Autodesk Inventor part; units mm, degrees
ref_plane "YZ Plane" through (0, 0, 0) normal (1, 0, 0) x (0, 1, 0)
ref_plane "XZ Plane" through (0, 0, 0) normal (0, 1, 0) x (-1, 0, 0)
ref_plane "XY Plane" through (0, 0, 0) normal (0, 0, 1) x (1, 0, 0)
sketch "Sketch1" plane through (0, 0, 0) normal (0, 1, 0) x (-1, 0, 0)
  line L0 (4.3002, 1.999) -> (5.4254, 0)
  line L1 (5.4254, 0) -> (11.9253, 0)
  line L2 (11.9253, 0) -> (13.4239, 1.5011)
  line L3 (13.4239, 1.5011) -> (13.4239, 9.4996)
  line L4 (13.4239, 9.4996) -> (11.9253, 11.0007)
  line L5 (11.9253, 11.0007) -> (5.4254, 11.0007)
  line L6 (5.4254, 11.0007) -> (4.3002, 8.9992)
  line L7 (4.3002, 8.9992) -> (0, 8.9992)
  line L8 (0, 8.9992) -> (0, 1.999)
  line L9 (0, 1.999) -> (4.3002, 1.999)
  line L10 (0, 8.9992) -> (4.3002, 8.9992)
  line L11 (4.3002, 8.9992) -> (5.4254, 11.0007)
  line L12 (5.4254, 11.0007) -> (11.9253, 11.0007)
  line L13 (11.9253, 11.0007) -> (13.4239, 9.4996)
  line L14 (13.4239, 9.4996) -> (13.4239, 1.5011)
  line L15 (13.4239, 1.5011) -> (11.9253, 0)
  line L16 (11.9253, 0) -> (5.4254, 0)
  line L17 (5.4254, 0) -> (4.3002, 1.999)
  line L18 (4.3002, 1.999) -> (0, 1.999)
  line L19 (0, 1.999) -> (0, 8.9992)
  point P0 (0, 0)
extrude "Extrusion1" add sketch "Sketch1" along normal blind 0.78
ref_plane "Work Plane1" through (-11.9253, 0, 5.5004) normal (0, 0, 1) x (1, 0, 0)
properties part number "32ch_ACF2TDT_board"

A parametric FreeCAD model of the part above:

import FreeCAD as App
import Part
import Sketcher


def add_polygon(sketch, points):
    """Adds a closed chain of lines whose ends are joined by coincident constraints."""
    first, n = sketch.GeometryCount, len(points)
    for a, b in zip(points, points[1:] + points[:1]):
        sketch.addGeometry(Part.LineSegment(App.Vector(*a, 0), App.Vector(*b, 0)), False)
    for i in range(n):
        sketch.addConstraint(Sketcher.Constraint("Coincident", first + i, 2, first + (i + 1) % n, 1))

doc = App.newDocument("Part")
params = doc.addObject("Spreadsheet::Sheet", "Params")
for row, (alias, value) in enumerate([
    ("sketch1_width", "6.5 mm"),
    ("pad1_length", "0.78 mm"),
], start=1):
    params.set(f"A{row}", alias)
    params.set(f"B{row}", "=" + value)
    params.setAlias(f"B{row}", alias)

body = doc.addObject("PartDesign::Body", "Body")

# Sketch on XZ plane
sketch1 = doc.addObject("Sketcher::SketchObject", "Sketch")
body.addObject(sketch1)
sketch1.AttachmentSupport = (doc.XZ_Plane, [""])
sketch1.MapMode = "FlatFace"
add_polygon(sketch1, [(0, 1.999), (-4.3002, 1.999), (-5.4254, 0), (-11.9253, 0), (-13.4239, 1.5011), (-13.4239, 9.4996), (-11.9253, 11.0007), (-5.4254, 11.0007), (-4.3002, 8.9992), (0, 8.9992)])  # lines 0-9
sketch1.addConstraint(Sketcher.Constraint("Horizontal", 0))
sketch1.addConstraint(Sketcher.Constraint("Horizontal", 2))
sketch1.addConstraint(Sketcher.Constraint("Vertical", 4))
sketch1.addConstraint(Sketcher.Constraint("Horizontal", 6))
sketch1.addConstraint(Sketcher.Constraint("Horizontal", 8))
sketch1.addConstraint(Sketcher.Constraint("Vertical", 9))
sketch1.addConstraint(Sketcher.Constraint("PointOnObject", 1, 2, -1))
sketch1.addConstraint(Sketcher.Constraint("PointOnObject", 8, 2, -2))
sketch1.addConstraint(Sketcher.Constraint("Vertical", 2, 2, 5, 2))
sketch1.addConstraint(Sketcher.Constraint("Vertical", 1, 2, 6, 2))
sketch1.addConstraint(Sketcher.Constraint("Vertical", 0, 2, 7, 2))
sketch1.addConstraint(Sketcher.Constraint("Equal", 3, 5))
sketch1.addConstraint(Sketcher.Constraint("DistanceX", 2, 2, 2, 1, 6.5))
sketch1.addConstraint(Sketcher.Constraint("Distance", 1, 2.294))
sketch1.addConstraint(Sketcher.Constraint("Distance", 3, 2.121))
sketch1.addConstraint(Sketcher.Constraint("Distance", 7, 2.296))
sketch1.addConstraint(Sketcher.Constraint("DistanceX", 0, 2, 0, 1, 4.3002))
sketch1.addConstraint(Sketcher.Constraint("DistanceY", 4, 1, 4, 2, 7.9985))
sketch1.addConstraint(Sketcher.Constraint("DistanceY", 9, 2, 9, 1, 7.0002))
sketch1.addConstraint(Sketcher.Constraint("DistanceY", -1, 1, 0, 2, 1.999))
sketch1.setExpression("Constraints[22]", "Params.sketch1_width")
pad1 = doc.addObject("PartDesign::Pad", "Pad")
body.addObject(pad1)
pad1.Profile = sketch1
pad1.setExpression("Length", "Params.pad1_length")
pad1.Reversed = True

doc.recompute()
